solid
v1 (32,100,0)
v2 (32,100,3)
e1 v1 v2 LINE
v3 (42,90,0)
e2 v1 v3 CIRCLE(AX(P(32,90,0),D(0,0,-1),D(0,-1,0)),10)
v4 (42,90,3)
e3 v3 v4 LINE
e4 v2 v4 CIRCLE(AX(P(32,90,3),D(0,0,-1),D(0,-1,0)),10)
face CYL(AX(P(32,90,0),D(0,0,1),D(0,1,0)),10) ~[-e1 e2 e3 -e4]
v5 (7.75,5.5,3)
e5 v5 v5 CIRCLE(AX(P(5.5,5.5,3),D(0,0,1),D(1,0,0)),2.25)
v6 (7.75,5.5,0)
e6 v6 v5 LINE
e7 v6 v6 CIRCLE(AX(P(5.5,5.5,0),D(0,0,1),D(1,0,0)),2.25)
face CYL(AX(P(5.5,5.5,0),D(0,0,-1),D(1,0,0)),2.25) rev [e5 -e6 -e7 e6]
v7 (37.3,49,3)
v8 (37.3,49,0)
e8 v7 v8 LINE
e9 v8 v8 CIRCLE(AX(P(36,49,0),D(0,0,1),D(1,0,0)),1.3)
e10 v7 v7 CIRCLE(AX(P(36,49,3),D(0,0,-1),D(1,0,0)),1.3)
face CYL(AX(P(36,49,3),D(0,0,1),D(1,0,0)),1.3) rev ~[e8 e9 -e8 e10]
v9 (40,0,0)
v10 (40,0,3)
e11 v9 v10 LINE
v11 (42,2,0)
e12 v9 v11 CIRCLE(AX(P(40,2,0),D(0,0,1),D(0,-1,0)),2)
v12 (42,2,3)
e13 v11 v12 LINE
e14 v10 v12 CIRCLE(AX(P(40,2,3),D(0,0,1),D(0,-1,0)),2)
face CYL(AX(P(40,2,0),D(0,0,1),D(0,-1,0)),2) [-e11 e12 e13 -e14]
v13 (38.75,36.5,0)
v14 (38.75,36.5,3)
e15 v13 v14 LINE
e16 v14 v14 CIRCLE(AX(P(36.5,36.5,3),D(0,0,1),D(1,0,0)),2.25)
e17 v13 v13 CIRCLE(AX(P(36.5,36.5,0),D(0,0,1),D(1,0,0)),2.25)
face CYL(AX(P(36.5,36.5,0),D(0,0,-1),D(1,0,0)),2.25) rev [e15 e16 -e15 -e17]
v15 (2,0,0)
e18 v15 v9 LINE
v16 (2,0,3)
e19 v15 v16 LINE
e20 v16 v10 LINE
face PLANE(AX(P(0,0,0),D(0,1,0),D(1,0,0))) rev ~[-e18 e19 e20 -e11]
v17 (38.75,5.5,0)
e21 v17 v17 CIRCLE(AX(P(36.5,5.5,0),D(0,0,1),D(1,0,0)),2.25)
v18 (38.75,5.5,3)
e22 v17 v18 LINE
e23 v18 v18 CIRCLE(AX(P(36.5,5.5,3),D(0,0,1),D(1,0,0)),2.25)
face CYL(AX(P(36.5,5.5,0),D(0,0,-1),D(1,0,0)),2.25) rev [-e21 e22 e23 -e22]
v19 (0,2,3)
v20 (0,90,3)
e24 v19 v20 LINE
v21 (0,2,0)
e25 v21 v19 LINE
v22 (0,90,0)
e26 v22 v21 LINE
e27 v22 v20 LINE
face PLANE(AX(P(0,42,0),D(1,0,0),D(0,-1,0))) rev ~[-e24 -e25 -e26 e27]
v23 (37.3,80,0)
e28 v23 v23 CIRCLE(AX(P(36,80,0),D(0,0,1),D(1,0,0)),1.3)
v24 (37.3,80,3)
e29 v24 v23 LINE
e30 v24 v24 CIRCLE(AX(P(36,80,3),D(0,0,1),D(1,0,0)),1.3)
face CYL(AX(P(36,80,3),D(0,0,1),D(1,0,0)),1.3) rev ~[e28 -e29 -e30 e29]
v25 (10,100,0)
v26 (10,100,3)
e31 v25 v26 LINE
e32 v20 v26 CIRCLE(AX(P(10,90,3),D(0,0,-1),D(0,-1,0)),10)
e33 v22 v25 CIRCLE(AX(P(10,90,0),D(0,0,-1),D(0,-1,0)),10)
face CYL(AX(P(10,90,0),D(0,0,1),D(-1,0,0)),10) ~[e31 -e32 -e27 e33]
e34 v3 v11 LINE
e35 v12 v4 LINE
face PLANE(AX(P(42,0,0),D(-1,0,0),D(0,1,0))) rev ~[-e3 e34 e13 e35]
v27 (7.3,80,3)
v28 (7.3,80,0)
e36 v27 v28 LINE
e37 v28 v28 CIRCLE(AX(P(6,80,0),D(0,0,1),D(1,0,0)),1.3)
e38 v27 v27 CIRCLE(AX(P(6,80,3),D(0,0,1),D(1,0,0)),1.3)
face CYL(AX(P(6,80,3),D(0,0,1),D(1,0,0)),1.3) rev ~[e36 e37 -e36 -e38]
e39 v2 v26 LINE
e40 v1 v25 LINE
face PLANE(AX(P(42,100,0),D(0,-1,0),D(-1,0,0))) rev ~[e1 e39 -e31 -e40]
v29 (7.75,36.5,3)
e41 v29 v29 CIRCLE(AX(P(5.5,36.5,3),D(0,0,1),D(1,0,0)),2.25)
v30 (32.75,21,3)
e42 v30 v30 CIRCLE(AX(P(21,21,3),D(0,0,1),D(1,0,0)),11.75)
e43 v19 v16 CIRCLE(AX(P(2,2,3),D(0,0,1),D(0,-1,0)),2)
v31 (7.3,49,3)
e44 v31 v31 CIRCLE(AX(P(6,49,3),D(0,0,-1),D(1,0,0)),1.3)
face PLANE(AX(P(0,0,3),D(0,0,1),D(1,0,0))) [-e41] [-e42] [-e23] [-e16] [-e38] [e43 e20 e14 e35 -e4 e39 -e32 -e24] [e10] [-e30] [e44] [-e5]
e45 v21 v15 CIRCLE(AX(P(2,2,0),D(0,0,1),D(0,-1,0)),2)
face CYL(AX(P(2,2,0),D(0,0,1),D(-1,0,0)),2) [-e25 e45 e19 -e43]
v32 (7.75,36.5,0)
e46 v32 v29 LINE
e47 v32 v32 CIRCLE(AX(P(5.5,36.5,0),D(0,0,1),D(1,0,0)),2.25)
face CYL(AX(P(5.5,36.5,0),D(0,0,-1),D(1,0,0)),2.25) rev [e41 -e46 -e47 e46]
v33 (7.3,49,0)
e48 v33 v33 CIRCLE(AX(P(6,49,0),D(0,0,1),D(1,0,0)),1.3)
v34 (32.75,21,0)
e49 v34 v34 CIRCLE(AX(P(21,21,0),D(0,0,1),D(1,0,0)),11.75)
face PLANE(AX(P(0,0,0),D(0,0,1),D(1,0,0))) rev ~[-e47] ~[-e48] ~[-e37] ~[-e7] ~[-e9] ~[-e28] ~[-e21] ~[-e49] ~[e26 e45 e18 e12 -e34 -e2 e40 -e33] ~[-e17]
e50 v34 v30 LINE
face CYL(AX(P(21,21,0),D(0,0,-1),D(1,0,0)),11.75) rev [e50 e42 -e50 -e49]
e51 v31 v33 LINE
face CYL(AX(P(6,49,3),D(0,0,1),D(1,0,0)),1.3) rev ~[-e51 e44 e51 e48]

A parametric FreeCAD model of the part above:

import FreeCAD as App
import Part
import Sketcher
from FreeCAD import Vector


def edges_at(feature, points):
    """Names of the edges that pass closest to the given points."""
    edges = feature.Shape.Edges
    near = lambda p: min(range(len(edges)), key=lambda i: edges[i].distToShape(Part.Vertex(*p))[0])
    return sorted({f"Edge{near(p) + 1}" for p in points})


def add_polygon(sketch, points):
    """Adds a closed chain of lines whose ends are joined by coincident constraints."""
    first, n = sketch.GeometryCount, len(points)
    for a, b in zip(points, points[1:] + points[:1]):
        sketch.addGeometry(Part.LineSegment(App.Vector(*a, 0), App.Vector(*b, 0)), False)
    for i in range(n):
        sketch.addConstraint(Sketcher.Constraint("Coincident", first + i, 2, first + (i + 1) % n, 1))

doc = App.newDocument("Part")
body = doc.addObject("PartDesign::Body", "Body")

# Sketch on XY plane
sketch1 = body.newObject("Sketcher::SketchObject", "Sketch")
sketch1.AttachmentSupport = (doc.getObject("XY_Plane"), [""])
sketch1.MapMode = "FlatFace"
add_polygon(sketch1, [(0, 0), (42, 0), (42, 100), (0, 100)])  # lines 0-3
sketch1.addGeometry(Part.Circle(Vector(5.5, 5.5, 0), Vector(0, 0, 1), 2.2), False)  # 4
sketch1.addGeometry(Part.Circle(Vector(5.5, 36.5, 0), Vector(0, 0, 1), 2.2), False)  # 5
sketch1.addGeometry(Part.Circle(Vector(21, 21, 0), Vector(0, 0, 1), 11.8), False)  # 6
sketch1.addGeometry(Part.Circle(Vector(36.5, 5.5, 0), Vector(0, 0, 1), 2.2), False)  # 7
sketch1.addGeometry(Part.Circle(Vector(36.5, 36.5, 0), Vector(0, 0, 1), 2.2), False)  # 8
sketch1.addConstraint([
    Sketcher.Constraint("Horizontal", 0),
    Sketcher.Constraint("Vertical", 1),
    Sketcher.Constraint("Horizontal", 2),
    Sketcher.Constraint("Vertical", 3),
    Sketcher.Constraint("Coincident", 3, 2, -1, 1),
    Sketcher.Constraint("Equal", 4, 5),
    Sketcher.Constraint("Equal", 5, 7),
    Sketcher.Constraint("Equal", 7, 8),
    Sketcher.Constraint("Horizontal", 4, 3, 7, 3),
    Sketcher.Constraint("Horizontal", 5, 3, 8, 3),
    Sketcher.Constraint("Vertical", 4, 3, 5, 3),
    Sketcher.Constraint("Vertical", 7, 3, 8, 3),
    Sketcher.Constraint("Diameter", 4, 4.5),
    Sketcher.Constraint("Diameter", 6, 23.5),
    Sketcher.Constraint("DistanceX", 0, 1, 0, 2, 42.0),
    Sketcher.Constraint("DistanceY", 1, 1, 1, 2, 100.0),
    Sketcher.Constraint("DistanceX", -1, 1, 4, 3, 5.5),
    Sketcher.Constraint("DistanceY", -1, 1, 4, 3, 5.5),
    Sketcher.Constraint("DistanceX", 7, 3, 0, 2, 5.5),
    Sketcher.Constraint("DistanceX", -1, 1, 6, 3, 21.0),
    Sketcher.Constraint("DistanceY", -1, 1, 6, 3, 21.0),
    Sketcher.Constraint("DistanceY", 4, 3, 5, 3, 31.0),
])
pad1 = body.newObject("PartDesign::Pad", "Pad")
pad1.Profile = sketch1
pad1.Length = 3
doc.recompute()

fillet = body.newObject("PartDesign::Fillet", "Fillet")
fillet.Base = (pad1, edges_at(pad1, [(42, 0, 1.5), (0, 0, 1.5)]))
fillet.Radius = 2
doc.recompute()

fillet2 = body.newObject("PartDesign::Fillet", "Fillet001")
fillet2.Base = (fillet, edges_at(fillet, [(0, 100, 1.5), (42, 100, 1.5)]))
fillet2.Radius = 10

# Sketch on XY plane
sketch2 = body.newObject("Sketcher::SketchObject", "Sketch001")
sketch2.AttachmentSupport = (doc.getObject("XY_Plane"), [""])
sketch2.MapMode = "FlatFace"
sketch2.AttachmentOffset = App.Placement(Vector(0, 0, 3), App.Rotation())
sketch2.addGeometry([
    Part.Circle(Vector(6, 49, 0), Vector(0, 0, 1), 1.3),
    Part.Circle(Vector(36, 49, 0), Vector(0, 0, 1), 1.3),
], False)
sketch2.addConstraint([
    Sketcher.Constraint("Equal", 0, 1),
    Sketcher.Constraint("Horizontal", 0, 3, 1, 3),
    Sketcher.Constraint("Diameter", 0, 2.6),
    Sketcher.Constraint("DistanceX", -1, 1, 0, 3, 6.0),
    Sketcher.Constraint("DistanceY", -1, 1, 0, 3, 49.0),
    Sketcher.Constraint("DistanceX", -1, 1, 1, 3, 36.0),
])
pocket1 = body.newObject("PartDesign::Pocket", "Pocket")
pocket1.Profile = sketch2
pocket1.Length = 3

# Sketch on XY plane
sketch3 = body.newObject("Sketcher::SketchObject", "Sketch002")
sketch3.AttachmentSupport = (doc.getObject("XY_Plane"), [""])
sketch3.MapMode = "FlatFace"
sketch3.AttachmentOffset = App.Placement(Vector(0, 0, 3), App.Rotation())
sketch3.addGeometry([
    Part.Circle(Vector(6, 80, 0), Vector(0, 0, 1), 1.3),
    Part.Circle(Vector(36, 80, 0), Vector(0, 0, 1), 1.3),
], False)
sketch3.addConstraint([
    Sketcher.Constraint("Equal", 0, 1),
    Sketcher.Constraint("Horizontal", 0, 3, 1, 3),
    Sketcher.Constraint("Diameter", 0, 2.6),
    Sketcher.Constraint("DistanceX", -1, 1, 0, 3, 6.0),
    Sketcher.Constraint("DistanceY", -1, 1, 0, 3, 80.0),
    Sketcher.Constraint("DistanceX", -1, 1, 1, 3, 36.0),
])
pocket2 = body.newObject("PartDesign::Pocket", "Pocket001")
pocket2.Profile = sketch3
pocket2.Length = 10

doc.recompute()
